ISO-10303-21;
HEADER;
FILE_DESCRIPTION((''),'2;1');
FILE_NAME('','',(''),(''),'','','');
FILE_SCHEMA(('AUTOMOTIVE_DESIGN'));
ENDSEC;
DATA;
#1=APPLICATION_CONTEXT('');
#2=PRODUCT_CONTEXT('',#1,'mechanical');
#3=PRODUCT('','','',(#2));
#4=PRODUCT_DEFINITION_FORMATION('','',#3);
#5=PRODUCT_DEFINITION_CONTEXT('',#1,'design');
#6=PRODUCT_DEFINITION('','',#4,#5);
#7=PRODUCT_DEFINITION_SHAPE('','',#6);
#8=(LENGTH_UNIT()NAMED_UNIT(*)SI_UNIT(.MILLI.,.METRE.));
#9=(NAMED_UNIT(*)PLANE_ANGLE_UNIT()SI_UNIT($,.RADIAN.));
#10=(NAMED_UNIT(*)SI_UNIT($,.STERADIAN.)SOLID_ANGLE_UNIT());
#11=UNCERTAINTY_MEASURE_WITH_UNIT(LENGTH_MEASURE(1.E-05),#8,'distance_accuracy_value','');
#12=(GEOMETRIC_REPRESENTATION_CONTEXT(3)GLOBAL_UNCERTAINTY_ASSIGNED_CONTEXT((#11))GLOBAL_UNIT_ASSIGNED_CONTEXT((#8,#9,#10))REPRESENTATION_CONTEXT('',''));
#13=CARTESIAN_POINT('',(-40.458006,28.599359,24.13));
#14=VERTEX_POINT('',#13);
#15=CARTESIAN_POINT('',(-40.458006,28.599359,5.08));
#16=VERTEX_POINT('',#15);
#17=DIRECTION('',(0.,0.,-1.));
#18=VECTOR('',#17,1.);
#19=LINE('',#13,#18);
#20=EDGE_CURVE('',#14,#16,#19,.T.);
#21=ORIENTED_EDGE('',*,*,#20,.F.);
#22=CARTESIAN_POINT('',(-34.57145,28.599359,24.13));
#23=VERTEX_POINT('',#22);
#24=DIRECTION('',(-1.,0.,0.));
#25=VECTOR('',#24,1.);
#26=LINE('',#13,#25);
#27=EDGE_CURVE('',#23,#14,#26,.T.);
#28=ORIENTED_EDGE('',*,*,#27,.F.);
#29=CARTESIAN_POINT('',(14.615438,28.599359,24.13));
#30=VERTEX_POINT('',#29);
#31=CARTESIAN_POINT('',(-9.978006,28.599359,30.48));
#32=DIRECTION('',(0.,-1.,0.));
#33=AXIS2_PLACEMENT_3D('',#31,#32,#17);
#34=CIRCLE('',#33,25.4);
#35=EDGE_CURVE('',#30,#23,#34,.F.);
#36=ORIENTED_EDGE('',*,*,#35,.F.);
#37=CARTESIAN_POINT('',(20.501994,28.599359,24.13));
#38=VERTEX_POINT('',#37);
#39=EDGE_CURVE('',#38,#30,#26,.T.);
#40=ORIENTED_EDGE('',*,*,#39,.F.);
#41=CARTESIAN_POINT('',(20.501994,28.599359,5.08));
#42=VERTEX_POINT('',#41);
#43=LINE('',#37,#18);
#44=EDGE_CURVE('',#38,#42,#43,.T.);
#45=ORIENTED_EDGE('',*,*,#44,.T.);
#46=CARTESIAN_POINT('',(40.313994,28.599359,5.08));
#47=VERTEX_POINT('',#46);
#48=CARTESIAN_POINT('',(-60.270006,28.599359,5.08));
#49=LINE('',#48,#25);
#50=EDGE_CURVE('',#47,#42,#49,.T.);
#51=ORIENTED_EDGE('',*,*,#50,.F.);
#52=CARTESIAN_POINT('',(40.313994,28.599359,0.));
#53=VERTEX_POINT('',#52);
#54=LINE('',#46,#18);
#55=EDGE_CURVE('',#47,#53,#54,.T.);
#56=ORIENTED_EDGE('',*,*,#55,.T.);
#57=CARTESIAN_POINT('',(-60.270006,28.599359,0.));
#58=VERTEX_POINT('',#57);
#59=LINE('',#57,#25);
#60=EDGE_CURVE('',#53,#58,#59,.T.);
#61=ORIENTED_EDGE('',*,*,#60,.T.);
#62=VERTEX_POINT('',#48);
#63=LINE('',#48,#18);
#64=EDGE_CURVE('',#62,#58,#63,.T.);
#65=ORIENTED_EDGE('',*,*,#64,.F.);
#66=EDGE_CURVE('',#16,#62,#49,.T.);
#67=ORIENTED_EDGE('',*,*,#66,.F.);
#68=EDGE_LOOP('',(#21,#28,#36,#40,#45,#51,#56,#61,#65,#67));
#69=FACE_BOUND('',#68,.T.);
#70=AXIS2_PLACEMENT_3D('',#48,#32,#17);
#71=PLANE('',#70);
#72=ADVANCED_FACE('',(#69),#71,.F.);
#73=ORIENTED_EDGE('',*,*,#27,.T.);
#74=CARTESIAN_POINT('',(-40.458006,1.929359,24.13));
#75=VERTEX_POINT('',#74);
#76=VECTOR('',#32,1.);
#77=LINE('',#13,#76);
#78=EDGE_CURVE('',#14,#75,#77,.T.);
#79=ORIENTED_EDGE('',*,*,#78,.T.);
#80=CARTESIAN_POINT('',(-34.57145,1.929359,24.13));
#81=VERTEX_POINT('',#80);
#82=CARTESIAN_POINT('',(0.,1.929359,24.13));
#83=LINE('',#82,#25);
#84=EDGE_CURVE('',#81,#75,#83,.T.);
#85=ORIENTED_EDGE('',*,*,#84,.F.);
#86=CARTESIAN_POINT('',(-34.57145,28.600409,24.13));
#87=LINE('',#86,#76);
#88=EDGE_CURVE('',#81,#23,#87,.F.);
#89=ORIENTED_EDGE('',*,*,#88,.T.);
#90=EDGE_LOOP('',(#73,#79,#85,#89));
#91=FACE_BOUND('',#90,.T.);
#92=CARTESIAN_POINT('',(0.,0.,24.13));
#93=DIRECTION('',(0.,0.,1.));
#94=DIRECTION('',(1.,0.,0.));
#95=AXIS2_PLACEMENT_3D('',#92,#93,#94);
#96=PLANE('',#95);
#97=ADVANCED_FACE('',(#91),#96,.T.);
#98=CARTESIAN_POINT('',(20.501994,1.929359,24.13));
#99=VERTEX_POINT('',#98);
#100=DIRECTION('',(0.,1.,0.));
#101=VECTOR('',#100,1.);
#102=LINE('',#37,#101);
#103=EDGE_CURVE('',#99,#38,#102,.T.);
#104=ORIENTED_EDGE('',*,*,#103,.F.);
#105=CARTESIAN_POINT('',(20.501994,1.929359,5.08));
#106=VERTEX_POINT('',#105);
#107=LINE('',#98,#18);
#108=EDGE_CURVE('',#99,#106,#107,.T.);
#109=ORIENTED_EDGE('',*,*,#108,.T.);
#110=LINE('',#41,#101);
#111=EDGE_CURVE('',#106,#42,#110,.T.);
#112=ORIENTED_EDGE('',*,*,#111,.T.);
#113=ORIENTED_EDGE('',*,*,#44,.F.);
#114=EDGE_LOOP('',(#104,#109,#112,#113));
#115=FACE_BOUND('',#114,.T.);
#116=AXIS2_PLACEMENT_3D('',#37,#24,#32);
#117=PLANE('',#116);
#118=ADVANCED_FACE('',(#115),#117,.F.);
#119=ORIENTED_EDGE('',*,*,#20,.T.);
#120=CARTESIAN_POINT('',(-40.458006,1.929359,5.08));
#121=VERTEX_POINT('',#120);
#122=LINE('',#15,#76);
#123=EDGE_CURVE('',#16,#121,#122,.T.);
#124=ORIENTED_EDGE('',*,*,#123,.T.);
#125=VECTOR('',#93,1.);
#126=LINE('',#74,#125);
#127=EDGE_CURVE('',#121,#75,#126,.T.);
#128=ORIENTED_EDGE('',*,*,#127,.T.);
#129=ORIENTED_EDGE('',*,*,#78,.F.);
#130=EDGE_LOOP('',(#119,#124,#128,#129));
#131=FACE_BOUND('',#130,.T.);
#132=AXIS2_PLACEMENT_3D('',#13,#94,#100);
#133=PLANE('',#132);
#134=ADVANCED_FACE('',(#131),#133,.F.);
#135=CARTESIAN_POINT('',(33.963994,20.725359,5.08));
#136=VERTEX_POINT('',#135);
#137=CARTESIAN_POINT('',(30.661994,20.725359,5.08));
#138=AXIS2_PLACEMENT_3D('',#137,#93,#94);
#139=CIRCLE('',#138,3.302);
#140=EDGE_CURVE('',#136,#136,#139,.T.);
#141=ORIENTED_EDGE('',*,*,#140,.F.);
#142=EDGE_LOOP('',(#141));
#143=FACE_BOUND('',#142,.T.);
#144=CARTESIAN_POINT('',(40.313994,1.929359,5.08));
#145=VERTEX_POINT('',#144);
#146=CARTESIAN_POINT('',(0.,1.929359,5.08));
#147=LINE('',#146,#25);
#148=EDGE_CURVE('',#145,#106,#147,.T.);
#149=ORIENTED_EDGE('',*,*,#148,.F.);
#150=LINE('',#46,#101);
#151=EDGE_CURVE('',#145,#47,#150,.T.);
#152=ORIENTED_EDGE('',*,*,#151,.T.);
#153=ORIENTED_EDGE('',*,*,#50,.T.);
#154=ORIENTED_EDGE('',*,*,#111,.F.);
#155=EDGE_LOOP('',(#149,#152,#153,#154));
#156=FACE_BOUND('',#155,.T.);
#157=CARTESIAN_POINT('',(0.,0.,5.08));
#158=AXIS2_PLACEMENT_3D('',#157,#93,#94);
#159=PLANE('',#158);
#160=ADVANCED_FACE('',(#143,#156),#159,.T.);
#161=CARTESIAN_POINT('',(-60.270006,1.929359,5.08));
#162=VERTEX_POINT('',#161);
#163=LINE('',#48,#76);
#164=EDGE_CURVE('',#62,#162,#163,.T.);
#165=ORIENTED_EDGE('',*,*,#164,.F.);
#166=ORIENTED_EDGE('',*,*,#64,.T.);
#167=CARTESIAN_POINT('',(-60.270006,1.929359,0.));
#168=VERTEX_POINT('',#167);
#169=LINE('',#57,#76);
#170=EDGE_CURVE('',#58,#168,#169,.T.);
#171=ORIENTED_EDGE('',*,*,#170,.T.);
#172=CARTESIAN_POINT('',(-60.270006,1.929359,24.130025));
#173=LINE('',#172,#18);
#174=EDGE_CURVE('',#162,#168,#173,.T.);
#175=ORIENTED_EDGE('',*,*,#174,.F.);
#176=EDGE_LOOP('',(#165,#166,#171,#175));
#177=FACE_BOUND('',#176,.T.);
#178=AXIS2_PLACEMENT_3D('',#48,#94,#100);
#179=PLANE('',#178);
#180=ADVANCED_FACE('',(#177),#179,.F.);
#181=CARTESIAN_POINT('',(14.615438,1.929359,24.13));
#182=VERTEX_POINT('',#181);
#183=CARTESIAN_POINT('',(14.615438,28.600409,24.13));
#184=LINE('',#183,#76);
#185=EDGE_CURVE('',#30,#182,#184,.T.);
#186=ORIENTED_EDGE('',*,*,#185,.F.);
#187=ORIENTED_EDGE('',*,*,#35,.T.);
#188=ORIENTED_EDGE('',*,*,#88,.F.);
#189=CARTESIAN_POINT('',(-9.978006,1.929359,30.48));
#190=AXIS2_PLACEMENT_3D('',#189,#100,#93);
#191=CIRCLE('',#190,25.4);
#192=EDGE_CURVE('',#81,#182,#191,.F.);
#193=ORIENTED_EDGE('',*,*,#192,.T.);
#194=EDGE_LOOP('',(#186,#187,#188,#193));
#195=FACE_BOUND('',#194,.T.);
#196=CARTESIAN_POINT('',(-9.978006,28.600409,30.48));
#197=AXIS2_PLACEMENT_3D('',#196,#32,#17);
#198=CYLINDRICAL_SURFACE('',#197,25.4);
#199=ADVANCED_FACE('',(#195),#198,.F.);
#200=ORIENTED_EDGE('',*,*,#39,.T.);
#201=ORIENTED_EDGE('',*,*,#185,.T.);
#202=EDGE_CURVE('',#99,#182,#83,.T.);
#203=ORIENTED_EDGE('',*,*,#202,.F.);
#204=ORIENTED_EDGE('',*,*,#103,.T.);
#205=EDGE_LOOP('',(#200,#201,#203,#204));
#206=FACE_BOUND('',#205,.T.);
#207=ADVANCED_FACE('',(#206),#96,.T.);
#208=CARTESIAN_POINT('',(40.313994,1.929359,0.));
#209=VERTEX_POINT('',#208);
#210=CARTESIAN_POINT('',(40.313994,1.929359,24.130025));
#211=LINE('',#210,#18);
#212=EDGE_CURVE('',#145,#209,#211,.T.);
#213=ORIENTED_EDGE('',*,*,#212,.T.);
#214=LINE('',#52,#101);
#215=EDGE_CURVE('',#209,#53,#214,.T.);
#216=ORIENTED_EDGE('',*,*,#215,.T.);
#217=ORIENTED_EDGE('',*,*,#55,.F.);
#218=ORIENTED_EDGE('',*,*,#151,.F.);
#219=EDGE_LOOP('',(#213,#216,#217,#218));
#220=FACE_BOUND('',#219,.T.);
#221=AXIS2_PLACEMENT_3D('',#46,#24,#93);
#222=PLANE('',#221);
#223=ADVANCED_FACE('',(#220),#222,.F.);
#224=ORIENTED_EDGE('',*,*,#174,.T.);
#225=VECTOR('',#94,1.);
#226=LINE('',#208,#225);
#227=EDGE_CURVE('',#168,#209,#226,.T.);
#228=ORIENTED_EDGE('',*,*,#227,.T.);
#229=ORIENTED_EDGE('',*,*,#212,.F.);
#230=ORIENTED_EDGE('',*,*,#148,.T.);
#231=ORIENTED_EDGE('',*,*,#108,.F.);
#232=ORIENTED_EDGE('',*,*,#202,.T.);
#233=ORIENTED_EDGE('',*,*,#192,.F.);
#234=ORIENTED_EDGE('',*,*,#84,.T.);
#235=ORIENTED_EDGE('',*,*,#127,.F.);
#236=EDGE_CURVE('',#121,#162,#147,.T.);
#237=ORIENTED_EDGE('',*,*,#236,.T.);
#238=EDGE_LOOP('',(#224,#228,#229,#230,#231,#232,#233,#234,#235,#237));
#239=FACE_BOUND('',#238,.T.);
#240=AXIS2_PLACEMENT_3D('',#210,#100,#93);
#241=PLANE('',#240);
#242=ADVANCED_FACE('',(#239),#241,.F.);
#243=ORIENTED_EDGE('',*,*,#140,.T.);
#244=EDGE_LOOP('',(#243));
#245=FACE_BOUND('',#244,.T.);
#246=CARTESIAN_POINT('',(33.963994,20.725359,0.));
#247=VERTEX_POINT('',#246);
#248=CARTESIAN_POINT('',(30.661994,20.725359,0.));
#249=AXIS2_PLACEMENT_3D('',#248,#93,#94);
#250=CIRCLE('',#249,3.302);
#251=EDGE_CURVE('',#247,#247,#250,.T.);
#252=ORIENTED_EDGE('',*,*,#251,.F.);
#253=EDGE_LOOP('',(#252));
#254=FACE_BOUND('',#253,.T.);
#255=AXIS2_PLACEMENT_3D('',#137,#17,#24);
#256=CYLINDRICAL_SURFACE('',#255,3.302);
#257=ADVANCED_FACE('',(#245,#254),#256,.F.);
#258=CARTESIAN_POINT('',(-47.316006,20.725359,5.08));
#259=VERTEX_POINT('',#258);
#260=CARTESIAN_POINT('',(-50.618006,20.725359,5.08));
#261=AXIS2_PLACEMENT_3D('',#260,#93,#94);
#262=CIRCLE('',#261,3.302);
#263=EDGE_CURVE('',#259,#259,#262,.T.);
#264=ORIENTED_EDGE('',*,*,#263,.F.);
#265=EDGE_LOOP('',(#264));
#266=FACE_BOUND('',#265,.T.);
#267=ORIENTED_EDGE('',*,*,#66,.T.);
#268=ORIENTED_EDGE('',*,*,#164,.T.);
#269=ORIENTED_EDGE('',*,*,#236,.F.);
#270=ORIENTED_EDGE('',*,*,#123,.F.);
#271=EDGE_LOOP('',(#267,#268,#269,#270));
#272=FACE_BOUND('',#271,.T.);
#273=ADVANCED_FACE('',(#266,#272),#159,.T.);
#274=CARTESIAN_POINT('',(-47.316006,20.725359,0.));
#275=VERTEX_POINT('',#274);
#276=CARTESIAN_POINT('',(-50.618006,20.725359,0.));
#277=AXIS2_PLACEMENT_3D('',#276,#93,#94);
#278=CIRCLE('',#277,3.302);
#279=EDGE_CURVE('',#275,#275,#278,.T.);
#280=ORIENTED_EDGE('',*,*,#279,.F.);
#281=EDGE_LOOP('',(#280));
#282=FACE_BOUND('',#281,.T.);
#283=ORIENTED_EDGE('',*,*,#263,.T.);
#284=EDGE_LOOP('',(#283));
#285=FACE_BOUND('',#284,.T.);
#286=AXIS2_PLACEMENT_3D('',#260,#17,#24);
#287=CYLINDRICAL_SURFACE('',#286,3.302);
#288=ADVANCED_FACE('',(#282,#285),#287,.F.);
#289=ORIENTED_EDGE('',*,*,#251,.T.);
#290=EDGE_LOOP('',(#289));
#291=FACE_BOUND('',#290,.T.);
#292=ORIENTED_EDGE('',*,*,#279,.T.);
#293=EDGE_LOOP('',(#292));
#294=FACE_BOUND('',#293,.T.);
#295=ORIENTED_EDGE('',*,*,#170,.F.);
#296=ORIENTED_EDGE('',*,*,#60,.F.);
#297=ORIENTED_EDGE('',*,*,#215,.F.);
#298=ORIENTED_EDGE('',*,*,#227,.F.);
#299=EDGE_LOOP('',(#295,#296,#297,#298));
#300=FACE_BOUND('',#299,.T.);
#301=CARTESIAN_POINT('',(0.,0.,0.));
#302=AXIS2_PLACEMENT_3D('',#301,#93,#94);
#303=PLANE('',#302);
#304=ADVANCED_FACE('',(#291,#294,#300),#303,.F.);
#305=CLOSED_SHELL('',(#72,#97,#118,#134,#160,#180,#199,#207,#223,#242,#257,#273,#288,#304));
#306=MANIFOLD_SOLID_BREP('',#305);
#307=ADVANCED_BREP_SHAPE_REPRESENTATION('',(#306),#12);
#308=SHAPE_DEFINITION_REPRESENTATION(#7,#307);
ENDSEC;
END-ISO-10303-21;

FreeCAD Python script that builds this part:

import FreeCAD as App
import Part
import Sketcher
from FreeCAD import Vector
Q = App.Units.Quantity


def add_polygon(sketch, points):
    """Adds a closed chain of lines whose ends are joined by coincident constraints."""
    first, n = sketch.GeometryCount, len(points)
    for a, b in zip(points, points[1:] + points[:1]):
        sketch.addGeometry(Part.LineSegment(App.Vector(*a, 0), App.Vector(*b, 0)), False)
    for i in range(n):
        sketch.addConstraint(Sketcher.Constraint("Coincident", first + i, 2, first + (i + 1) % n, 1))

doc = App.newDocument("Part")
body = doc.addObject("PartDesign::Body", "Body")

sketch1 = doc.addObject("Sketcher::SketchObject", "Sketch")
body.addObject(sketch1)
sketch1.AttachmentSupport = (doc.XY_Plane, [""])
sketch1.MapMode = "FlatFace"
add_polygon(sketch1, [(-60.270006, 28.599359), (-60.270006, -24.740641), (40.313994, -24.740641), (40.313994, 28.599359)])
sketch1.addGeometry(Part.Circle(Vector(-50.618006, -16.866641, 0), Vector(0, 0, 1), 3.302), False)
sketch1.addGeometry(Part.Circle(Vector(30.661994, -16.866641, 0), Vector(0, 0, 1), 3.302), False)
sketch1.addGeometry(Part.Circle(Vector(-50.618006, 20.725359, 0), Vector(0, 0, 1), 3.302), False)
sketch1.addGeometry(Part.Circle(Vector(30.661994, 20.725359, 0), Vector(0, 0, 1), 3.302), False)
sketch1.addConstraint([
    Sketcher.Constraint("Vertical", 0),
    Sketcher.Constraint("Horizontal", 1),
    Sketcher.Constraint("Vertical", 2),
    Sketcher.Constraint("Horizontal", 3),
    Sketcher.Constraint("Equal", 4, 5),
    Sketcher.Constraint("Equal", 5, 6),
    Sketcher.Constraint("Equal", 6, 7),
    Sketcher.Constraint("Horizontal", 4, 3, 5, 3),
    Sketcher.Constraint("Horizontal", 6, 3, 7, 3),
    Sketcher.Constraint("Vertical", 4, 3, 6, 3),
    Sketcher.Constraint("Vertical", 5, 3, 7, 3),
    Sketcher.Constraint("Diameter", 4, Q("0.26 in")),
    Sketcher.Constraint("DistanceY", 0, 2, 0, 1, Q("2.1 in")),
    Sketcher.Constraint("DistanceX", 1, 1, 1, 2, Q("3.96 in")),
    Sketcher.Constraint("DistanceX", 4, 3, 5, 3, Q("3.2 in")),
    Sketcher.Constraint("DistanceY", 4, 3, 6, 3, Q("1.48 in")),
    Sketcher.Constraint("DistanceX", 0, 2, 4, 3, Q("0.38 in")),
    Sketcher.Constraint("DistanceY", 0, 2, 4, 3, Q("0.31 in")),
    Sketcher.Constraint("DistanceY", 4, 3, -1, 1, Q("16.866641 mm")),
    Sketcher.Constraint("DistanceX", 4, 3, -1, 1, Q("50.618006 mm")),
])
pad1 = doc.addObject("PartDesign::Pad", "Pad")
body.addObject(pad1)
pad1.Profile = sketch1
pad1.Length = Q("0.2 in")

sketch2 = doc.addObject("Sketcher::SketchObject", "Sketch001")
body.addObject(sketch2)
sketch2.AttachmentSupport = (doc.XY_Plane, [""])
sketch2.MapMode = "FlatFace"
sketch2.AttachmentOffset = App.Placement(Vector(0, 0, 0.2 * 25.4), App.Rotation())
add_polygon(sketch2, [(-40.458006, 28.599359), (-40.458006, -24.740641), (20.501994, -24.740641), (20.501994, 28.599359)])
sketch2.addConstraint([
    Sketcher.Constraint("Vertical", 0),
    Sketcher.Constraint("Horizontal", 1),
    Sketcher.Constraint("Vertical", 2),
    Sketcher.Constraint("Horizontal", 3),
    Sketcher.Constraint("DistanceX", 1, 1, 1, 2, Q("2.4 in")),
    Sketcher.Constraint("DistanceY", 0, 2, 0, 1, Q("2.1 in")),
    Sketcher.Constraint("DistanceY", 0, 2, -1, 1, Q("24.740641 mm")),
    Sketcher.Constraint("DistanceX", 0, 2, -1, 1, Q("40.458006 mm")),
])
pad2 = doc.addObject("PartDesign::Pad", "Pad001")
body.addObject(pad2)
pad2.Profile = sketch2
pad2.Length = Q("0.75 in")

sketch3 = doc.addObject("Sketcher::SketchObject", "Sketch002")
body.addObject(sketch3)
sketch3.AttachmentSupport = (doc.XZ_Plane, [""])
sketch3.MapMode = "FlatFace"
sketch3.AttachmentOffset = App.Placement(Vector(0, 0, 24.740641), App.Rotation())
sketch3.addGeometry(Part.Circle(Vector(-9.978006, 30.48, 0), Vector(0, 0, 1), 25.4), False)
sketch3.addConstraint([
    Sketcher.Constraint("Diameter", 0, Q("2 in")),
    Sketcher.Constraint("DistanceY", -1, 1, 0, 3, Q("1.2 in")),
    Sketcher.Constraint("DistanceX", 0, 3, -1, 1, Q("9.978006 mm")),
])
pocket1 = doc.addObject("PartDesign::Pocket", "Pocket")
body.addObject(pocket1)
pocket1.Profile = sketch3
pocket1.Length = Q("2.1 in")

sketch4 = doc.addObject("Sketcher::SketchObject", "Sketch003")
body.addObject(sketch4)
sketch4.AttachmentSupport = (doc.XY_Plane, [""])
sketch4.MapMode = "FlatFace"
add_polygon(sketch4, [(40.313994, 1.929359), (40.313994, -24.740641), (-60.270006, -24.740641), (-60.270006, 1.929359)])
sketch4.addConstraint([
    Sketcher.Constraint("Vertical", 0),
    Sketcher.Constraint("Horizontal", 1),
    Sketcher.Constraint("Vertical", 2),
    Sketcher.Constraint("Horizontal", 3),
    Sketcher.Constraint("DistanceX", 1, 2, 1, 1, Q("3.96 in")),
    Sketcher.Constraint("DistanceY", 0, 2, 0, 1, Q("1.05 in")),
    Sketcher.Constraint("DistanceY", 0, 2, -1, 1, Q("24.740641 mm")),
    Sketcher.Constraint("DistanceX", -1, 1, 0, 2, Q("40.313994 mm")),
])
pocket2 = doc.addObject("PartDesign::Pocket", "Pocket001")
body.addObject(pocket2)
pocket2.Profile = sketch4
pocket2.Type = "ThroughAll"
pocket2.Reversed = True

doc.recompute()
